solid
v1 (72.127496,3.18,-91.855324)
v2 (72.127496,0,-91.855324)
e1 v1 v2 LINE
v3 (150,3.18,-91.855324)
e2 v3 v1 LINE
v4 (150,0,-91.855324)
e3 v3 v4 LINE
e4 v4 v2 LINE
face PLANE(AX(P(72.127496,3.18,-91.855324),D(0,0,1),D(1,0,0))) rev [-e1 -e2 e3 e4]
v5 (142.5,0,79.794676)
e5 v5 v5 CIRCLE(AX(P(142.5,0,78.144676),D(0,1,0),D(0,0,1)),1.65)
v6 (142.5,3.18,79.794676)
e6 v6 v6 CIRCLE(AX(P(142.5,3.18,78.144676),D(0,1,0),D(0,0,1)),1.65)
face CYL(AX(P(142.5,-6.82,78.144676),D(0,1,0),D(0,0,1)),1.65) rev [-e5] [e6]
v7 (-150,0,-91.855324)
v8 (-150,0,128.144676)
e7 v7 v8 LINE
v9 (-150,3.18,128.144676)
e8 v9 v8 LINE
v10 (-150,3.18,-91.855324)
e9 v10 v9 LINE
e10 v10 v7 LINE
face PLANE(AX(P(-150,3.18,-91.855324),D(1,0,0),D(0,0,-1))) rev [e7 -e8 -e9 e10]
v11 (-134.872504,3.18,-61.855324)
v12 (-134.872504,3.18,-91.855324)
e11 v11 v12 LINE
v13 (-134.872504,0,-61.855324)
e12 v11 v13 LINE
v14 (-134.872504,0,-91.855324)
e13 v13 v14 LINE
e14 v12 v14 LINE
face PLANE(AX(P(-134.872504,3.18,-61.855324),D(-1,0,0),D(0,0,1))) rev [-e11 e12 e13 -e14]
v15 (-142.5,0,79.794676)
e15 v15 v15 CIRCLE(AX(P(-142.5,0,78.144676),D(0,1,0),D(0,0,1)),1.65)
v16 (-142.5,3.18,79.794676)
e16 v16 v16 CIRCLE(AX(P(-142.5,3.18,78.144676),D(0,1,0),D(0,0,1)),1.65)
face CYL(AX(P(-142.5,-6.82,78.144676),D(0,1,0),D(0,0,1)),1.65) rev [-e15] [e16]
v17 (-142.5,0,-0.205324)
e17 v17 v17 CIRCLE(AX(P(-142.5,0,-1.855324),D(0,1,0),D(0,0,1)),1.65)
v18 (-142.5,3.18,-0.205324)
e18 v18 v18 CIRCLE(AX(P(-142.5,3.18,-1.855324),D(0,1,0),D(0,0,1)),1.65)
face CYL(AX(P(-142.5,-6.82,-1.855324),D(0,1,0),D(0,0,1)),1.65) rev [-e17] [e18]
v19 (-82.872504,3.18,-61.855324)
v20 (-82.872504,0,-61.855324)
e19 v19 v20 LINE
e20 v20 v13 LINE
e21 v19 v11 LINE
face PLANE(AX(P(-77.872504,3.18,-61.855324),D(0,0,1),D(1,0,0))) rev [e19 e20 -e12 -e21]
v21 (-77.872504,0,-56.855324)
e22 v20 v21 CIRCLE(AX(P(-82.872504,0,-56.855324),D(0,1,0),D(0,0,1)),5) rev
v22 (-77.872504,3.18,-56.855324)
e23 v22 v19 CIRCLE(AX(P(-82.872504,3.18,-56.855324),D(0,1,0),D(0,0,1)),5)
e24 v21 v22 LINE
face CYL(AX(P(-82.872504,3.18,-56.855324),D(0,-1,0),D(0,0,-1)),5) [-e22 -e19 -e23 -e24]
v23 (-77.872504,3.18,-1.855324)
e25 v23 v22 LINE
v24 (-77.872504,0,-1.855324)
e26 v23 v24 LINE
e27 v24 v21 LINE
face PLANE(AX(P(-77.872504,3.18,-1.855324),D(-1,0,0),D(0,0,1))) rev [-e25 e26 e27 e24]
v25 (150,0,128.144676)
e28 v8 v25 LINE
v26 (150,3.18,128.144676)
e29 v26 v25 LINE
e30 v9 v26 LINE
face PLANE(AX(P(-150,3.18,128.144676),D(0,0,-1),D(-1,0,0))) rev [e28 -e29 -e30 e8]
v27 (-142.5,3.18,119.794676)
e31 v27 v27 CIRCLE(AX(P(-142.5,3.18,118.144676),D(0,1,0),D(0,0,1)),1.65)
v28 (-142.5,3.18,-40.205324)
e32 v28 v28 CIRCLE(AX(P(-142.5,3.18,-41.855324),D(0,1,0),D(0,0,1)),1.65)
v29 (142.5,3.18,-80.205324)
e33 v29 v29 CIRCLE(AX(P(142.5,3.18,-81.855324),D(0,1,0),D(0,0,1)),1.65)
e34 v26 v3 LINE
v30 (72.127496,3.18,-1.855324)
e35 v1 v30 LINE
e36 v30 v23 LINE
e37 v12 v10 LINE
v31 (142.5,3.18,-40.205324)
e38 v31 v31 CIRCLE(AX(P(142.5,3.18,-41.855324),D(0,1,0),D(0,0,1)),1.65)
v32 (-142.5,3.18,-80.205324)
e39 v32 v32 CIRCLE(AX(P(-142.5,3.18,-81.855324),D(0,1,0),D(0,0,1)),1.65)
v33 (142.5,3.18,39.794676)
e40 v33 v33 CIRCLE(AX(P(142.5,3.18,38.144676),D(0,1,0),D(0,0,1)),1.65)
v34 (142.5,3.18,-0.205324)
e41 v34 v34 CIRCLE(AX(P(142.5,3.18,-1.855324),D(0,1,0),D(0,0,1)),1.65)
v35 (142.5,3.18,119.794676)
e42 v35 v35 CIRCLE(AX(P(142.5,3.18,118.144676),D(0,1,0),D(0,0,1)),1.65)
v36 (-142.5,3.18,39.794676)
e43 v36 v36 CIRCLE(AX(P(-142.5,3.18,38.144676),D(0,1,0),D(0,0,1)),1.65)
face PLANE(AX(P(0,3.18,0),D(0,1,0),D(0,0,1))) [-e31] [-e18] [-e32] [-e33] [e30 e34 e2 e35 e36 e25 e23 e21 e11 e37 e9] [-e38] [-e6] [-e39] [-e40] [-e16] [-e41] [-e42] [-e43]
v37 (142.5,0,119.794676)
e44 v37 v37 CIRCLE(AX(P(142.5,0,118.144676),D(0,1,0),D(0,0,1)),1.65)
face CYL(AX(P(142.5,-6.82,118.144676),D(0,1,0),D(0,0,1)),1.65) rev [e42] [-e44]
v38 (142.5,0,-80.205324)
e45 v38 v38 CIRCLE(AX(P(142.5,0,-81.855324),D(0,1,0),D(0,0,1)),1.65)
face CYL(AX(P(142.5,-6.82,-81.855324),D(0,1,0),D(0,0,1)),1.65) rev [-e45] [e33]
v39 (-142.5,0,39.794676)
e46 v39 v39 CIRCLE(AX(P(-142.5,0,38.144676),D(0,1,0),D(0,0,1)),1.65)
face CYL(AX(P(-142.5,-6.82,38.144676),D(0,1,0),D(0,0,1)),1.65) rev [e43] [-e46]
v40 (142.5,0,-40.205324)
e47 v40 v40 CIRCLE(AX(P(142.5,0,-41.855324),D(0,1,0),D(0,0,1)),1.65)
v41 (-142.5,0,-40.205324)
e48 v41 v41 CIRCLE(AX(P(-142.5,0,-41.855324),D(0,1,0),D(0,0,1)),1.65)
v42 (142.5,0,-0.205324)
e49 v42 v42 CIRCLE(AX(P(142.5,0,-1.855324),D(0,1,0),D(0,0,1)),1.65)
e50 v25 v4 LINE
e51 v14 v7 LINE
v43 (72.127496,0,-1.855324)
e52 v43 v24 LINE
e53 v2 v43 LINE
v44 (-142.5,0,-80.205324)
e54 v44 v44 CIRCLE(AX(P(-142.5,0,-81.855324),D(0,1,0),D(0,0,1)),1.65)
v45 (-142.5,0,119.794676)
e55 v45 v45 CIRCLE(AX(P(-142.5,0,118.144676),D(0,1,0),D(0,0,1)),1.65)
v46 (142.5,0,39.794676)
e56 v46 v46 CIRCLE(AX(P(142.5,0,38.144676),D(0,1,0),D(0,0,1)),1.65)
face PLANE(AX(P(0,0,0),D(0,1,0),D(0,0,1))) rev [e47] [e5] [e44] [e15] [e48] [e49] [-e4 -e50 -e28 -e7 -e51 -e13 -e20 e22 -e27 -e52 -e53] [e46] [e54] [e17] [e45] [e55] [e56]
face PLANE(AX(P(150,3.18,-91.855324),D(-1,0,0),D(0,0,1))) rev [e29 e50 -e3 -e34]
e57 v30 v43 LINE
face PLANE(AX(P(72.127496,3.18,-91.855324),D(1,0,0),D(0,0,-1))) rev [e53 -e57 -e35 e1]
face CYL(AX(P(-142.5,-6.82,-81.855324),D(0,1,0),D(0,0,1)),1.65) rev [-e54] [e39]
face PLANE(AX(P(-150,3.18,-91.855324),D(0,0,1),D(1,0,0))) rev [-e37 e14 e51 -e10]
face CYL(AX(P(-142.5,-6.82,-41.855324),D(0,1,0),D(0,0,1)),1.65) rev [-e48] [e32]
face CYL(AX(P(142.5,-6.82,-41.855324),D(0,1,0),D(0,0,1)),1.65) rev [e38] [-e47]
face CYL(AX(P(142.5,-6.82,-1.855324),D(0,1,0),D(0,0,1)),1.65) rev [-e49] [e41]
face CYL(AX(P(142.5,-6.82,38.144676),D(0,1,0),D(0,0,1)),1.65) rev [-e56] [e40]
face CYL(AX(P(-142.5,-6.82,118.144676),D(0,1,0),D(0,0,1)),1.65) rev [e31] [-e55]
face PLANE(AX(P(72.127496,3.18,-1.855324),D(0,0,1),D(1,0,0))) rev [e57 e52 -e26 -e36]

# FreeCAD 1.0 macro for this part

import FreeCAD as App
import Part
import Sketcher
from FreeCAD import Vector


def edges_at(feature, points):
    """Names of the edges that pass closest to the given points."""
    edges = feature.Shape.Edges
    near = lambda p: min(range(len(edges)), key=lambda i: edges[i].distToShape(Part.Vertex(*p))[0])
    return sorted({f"Edge{near(p) + 1}" for p in points})


def add_polygon(sketch, points):
    """Adds a closed chain of lines whose ends are joined by coincident constraints."""
    first, n = sketch.GeometryCount, len(points)
    for a, b in zip(points, points[1:] + points[:1]):
        sketch.addGeometry(Part.LineSegment(App.Vector(*a, 0), App.Vector(*b, 0)), False)
    for i in range(n):
        sketch.addConstraint(Sketcher.Constraint("Coincident", first + i, 2, first + (i + 1) % n, 1))

doc = App.newDocument("Part")
body = doc.addObject("PartDesign::Body", "Body")

# Sketch on XZ plane
sketch1 = body.newObject("Sketcher::SketchObject", "Sketch")
sketch1.AttachmentSupport = (doc.getObject("XZ_Plane"), [""])
sketch1.MapMode = "FlatFace"
add_polygon(sketch1, [(72.127496, -91.855324), (72.127496, -1.855324), (-77.872504, -1.855324), (-77.872504, -61.855324), (-134.872504, -61.855324), (-134.872504, -91.855324), (-150, -91.855324), (-150, 128.144676), (150, 128.144676), (150, -91.855324)])  # lines 0-9
sketch1.addConstraint(Sketcher.Constraint("Vertical", 0))
sketch1.addConstraint(Sketcher.Constraint("Horizontal", 1))
sketch1.addConstraint(Sketcher.Constraint("Vertical", 2))
sketch1.addConstraint(Sketcher.Constraint("Horizontal", 3))
sketch1.addConstraint(Sketcher.Constraint("Vertical", 4))
sketch1.addConstraint(Sketcher.Constraint("Horizontal", 5))
sketch1.addConstraint(Sketcher.Constraint("Vertical", 6))
sketch1.addConstraint(Sketcher.Constraint("Horizontal", 7))
sketch1.addConstraint(Sketcher.Constraint("Vertical", 8))
sketch1.addConstraint(Sketcher.Constraint("Horizontal", 9))
sketch1.addConstraint(Sketcher.Constraint("Symmetric", 5, 2, 8, 2, -2))
sketch1.addConstraint(Sketcher.Constraint("DistanceX", 1, 2, 1, 1, 150.0))
sketch1.addConstraint(Sketcher.Constraint("DistanceX", 3, 2, 3, 1, 57.0))
sketch1.addConstraint(Sketcher.Constraint("DistanceX", 7, 1, 7, 2, 300.0))
sketch1.addConstraint(Sketcher.Constraint("DistanceY", 0, 1, 0, 2, 90.0))
sketch1.addConstraint(Sketcher.Constraint("DistanceY", 2, 2, 2, 1, 60.0))
sketch1.addConstraint(Sketcher.Constraint("DistanceY", 6, 1, 6, 2, 220.0))
sketch1.addConstraint(Sketcher.Constraint("DistanceX", 5, 2, 5, 1, 15.127496))
sketch1.addConstraint(Sketcher.Constraint("DistanceY", 0, 2, -1, 1, 1.855324))
pad1 = body.newObject("PartDesign::Pad", "Pad")
pad1.Profile = sketch1
pad1.Length = 3.18
pad1.Reversed = True

# Sketch on XZ plane
sketch2 = body.newObject("Sketcher::SketchObject", "Sketch001")
sketch2.AttachmentSupport = (doc.getObject("XZ_Plane"), [""])
sketch2.MapMode = "FlatFace"
sketch2.AttachmentOffset = App.Placement(Vector(0, 0, -3.18), App.Rotation())
sketch2.addGeometry(Part.Circle(Vector(-142.5, -81.855324, 0), Vector(0, 0, 1), 1.65), False)
sketch2.addGeometry(Part.Circle(Vector(-142.5, -41.855324, 0), Vector(0, 0, 1), 1.65), False)
sketch2.addGeometry(Part.Circle(Vector(-142.5, -1.855324, 0), Vector(0, 0, 1), 1.65), False)
sketch2.addGeometry(Part.Circle(Vector(-142.5, 38.144676, 0), Vector(0, 0, 1), 1.65), False)
sketch2.addGeometry(Part.Circle(Vector(-142.5, 78.144676, 0), Vector(0, 0, 1), 1.65), False)
sketch2.addGeometry(Part.Circle(Vector(-142.5, 118.144676, 0), Vector(0, 0, 1), 1.65), False)
sketch2.addGeometry(Part.Circle(Vector(142.5, -81.855324, 0), Vector(0, 0, 1), 1.65), False)
sketch2.addGeometry(Part.Circle(Vector(142.5, -41.855324, 0), Vector(0, 0, 1), 1.65), False)
sketch2.addGeometry(Part.Circle(Vector(142.5, -1.855324, 0), Vector(0, 0, 1), 1.65), False)
sketch2.addGeometry(Part.Circle(Vector(142.5, 38.144676, 0), Vector(0, 0, 1), 1.65), False)
sketch2.addGeometry(Part.Circle(Vector(142.5, 78.144676, 0), Vector(0, 0, 1), 1.65), False)
sketch2.addGeometry(Part.Circle(Vector(142.5, 118.144676, 0), Vector(0, 0, 1), 1.65), False)
sketch2.addConstraint(Sketcher.Constraint("Equal", 0, 1))
sketch2.addConstraint(Sketcher.Constraint("Equal", 1, 2))
sketch2.addConstraint(Sketcher.Constraint("Equal", 2, 3))
sketch2.addConstraint(Sketcher.Constraint("Equal", 3, 4))
sketch2.addConstraint(Sketcher.Constraint("Equal", 4, 5))
sketch2.addConstraint(Sketcher.Constraint("Equal", 5, 6))
sketch2.addConstraint(Sketcher.Constraint("Equal", 6, 7))
sketch2.addConstraint(Sketcher.Constraint("Equal", 7, 8))
sketch2.addConstraint(Sketcher.Constraint("Equal", 8, 9))
sketch2.addConstraint(Sketcher.Constraint("Equal", 9, 10))
sketch2.addConstraint(Sketcher.Constraint("Equal", 10, 11))
sketch2.addConstraint(Sketcher.Constraint("Symmetric", 0, 3, 6, 3, -2))
sketch2.addConstraint(Sketcher.Constraint("Symmetric", 1, 3, 7, 3, -2))
sketch2.addConstraint(Sketcher.Constraint("Symmetric", 2, 3, 8, 3, -2))
sketch2.addConstraint(Sketcher.Constraint("Symmetric", 3, 3, 9, 3, -2))
sketch2.addConstraint(Sketcher.Constraint("Symmetric", 4, 3, 10, 3, -2))
sketch2.addConstraint(Sketcher.Constraint("Symmetric", 5, 3, 11, 3, -2))
sketch2.addConstraint(Sketcher.Constraint("Vertical", 0, 3, 1, 3))
sketch2.addConstraint(Sketcher.Constraint("Vertical", 1, 3, 2, 3))
sketch2.addConstraint(Sketcher.Constraint("Vertical", 2, 3, 3, 3))
sketch2.addConstraint(Sketcher.Constraint("Vertical", 3, 3, 4, 3))
sketch2.addConstraint(Sketcher.Constraint("Vertical", 4, 3, 5, 3))
sketch2.addConstraint(Sketcher.Constraint("Diameter", 0, 3.3))
sketch2.addConstraint(Sketcher.Constraint("DistanceY", 0, 3, 1, 3, 40.0))
sketch2.addConstraint(Sketcher.Constraint("DistanceY", 1, 3, 2, 3, 40.0))
sketch2.addConstraint(Sketcher.Constraint("DistanceY", 2, 3, 3, 3, 40.0))
sketch2.addConstraint(Sketcher.Constraint("DistanceY", 3, 3, 4, 3, 40.0))
sketch2.addConstraint(Sketcher.Constraint("DistanceY", 4, 3, 5, 3, 40.0))
sketch2.addConstraint(Sketcher.Constraint("DistanceX", 0, 3, 6, 3, 285.0))
sketch2.addConstraint(Sketcher.Constraint("DistanceY", 0, 3, -1, 1, 81.855324))
pocket1 = body.newObject("PartDesign::Pocket", "Pocket")
pocket1.Profile = sketch2
pocket1.Length = 10
pocket1.Reversed = True
doc.recompute()

fillet = body.newObject("PartDesign::Fillet", "Fillet")
fillet.Base = (pocket1, edges_at(pocket1, [(-77.873, 1.59, -61.855)]))
fillet.Radius = 5

doc.recompute()
